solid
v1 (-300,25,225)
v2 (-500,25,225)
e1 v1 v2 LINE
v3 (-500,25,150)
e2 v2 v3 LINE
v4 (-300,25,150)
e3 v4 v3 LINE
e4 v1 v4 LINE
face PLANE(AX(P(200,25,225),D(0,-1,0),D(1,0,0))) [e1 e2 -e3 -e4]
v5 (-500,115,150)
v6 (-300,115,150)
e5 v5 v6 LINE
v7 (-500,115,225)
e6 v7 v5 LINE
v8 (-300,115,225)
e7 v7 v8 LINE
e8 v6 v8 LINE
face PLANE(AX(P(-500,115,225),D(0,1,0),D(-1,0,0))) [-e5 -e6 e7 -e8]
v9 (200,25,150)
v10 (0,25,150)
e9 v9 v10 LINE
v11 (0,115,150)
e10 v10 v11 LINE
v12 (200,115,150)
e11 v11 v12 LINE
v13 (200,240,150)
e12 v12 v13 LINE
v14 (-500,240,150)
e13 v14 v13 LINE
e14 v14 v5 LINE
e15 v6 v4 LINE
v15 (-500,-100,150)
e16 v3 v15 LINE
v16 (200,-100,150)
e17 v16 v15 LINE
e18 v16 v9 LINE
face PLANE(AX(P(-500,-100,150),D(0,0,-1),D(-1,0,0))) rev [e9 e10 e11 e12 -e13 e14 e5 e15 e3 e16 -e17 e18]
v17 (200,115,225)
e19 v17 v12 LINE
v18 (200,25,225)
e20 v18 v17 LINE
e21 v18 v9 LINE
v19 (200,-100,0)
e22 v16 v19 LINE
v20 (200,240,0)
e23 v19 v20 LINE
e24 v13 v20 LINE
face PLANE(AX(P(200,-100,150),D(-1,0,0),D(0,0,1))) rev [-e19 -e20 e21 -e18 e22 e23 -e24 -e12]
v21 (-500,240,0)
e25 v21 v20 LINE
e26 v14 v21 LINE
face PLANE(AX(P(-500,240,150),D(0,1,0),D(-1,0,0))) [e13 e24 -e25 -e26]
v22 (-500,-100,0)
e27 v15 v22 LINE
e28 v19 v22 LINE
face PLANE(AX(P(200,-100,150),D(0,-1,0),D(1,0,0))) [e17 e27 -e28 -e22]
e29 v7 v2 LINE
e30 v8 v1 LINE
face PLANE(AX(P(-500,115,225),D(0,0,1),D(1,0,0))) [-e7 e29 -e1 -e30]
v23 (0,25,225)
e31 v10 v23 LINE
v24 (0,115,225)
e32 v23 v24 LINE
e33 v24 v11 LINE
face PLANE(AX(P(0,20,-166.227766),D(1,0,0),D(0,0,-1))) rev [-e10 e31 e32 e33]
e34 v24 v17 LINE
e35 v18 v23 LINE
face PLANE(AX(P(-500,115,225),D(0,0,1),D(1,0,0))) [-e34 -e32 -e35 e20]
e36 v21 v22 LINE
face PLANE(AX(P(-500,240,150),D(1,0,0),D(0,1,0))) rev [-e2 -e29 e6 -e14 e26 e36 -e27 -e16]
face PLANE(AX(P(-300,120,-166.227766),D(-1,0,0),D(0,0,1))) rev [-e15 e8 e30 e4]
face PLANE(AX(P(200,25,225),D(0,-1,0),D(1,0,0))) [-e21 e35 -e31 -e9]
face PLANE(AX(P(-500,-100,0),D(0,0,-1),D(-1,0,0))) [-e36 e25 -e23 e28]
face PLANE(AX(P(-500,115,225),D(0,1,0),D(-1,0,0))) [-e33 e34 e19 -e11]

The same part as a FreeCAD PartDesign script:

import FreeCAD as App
import Part
import Sketcher
Q = App.Units.Quantity


def add_polygon(sketch, points):
    """Adds a closed chain of lines whose ends are joined by coincident constraints."""
    first, n = sketch.GeometryCount, len(points)
    for a, b in zip(points, points[1:] + points[:1]):
        sketch.addGeometry(Part.LineSegment(App.Vector(*a, 0), App.Vector(*b, 0)), False)
    for i in range(n):
        sketch.addConstraint(Sketcher.Constraint("Coincident", first + i, 2, first + (i + 1) % n, 1))

doc = App.newDocument("Part")
params = doc.addObject("Spreadsheet::Sheet", "Params")
for row, (alias, value) in enumerate([
    ("sketch1_width", "700 mm"),
    ("sketch1_height", "340 mm"),
    ("pad1_length", "150 mm"),
    ("sketch2_width", "700 mm"),
    ("sketch2_height", "90 mm"),
    ("pad2_length", "75 mm"),
    ("sketch3_width", "300 mm"),
    ("sketch3_height", "100 mm"),
    ("pocket1_length", "75 mm"),
], start=1):
    params.set(f"A{row}", alias)
    params.set(f"B{row}", "=" + value)
    params.setAlias(f"B{row}", alias)

body = doc.addObject("PartDesign::Body", "Body")

sketch1 = doc.addObject("Sketcher::SketchObject", "Sketch")
body.addObject(sketch1)
sketch1.AttachmentSupport = (doc.XY_Plane, [""])
sketch1.MapMode = "FlatFace"
add_polygon(sketch1, [(-500, 240), (-500, -100), (200, -100), (200, 240)])
sketch1.addConstraint(Sketcher.Constraint("Vertical", 0))
sketch1.addConstraint(Sketcher.Constraint("Horizontal", 1))
sketch1.addConstraint(Sketcher.Constraint("Vertical", 2))
sketch1.addConstraint(Sketcher.Constraint("Horizontal", 3))
sketch1.addConstraint(Sketcher.Constraint("DistanceX", 1, 1, 1, 2, Q("700 mm")))
sketch1.addConstraint(Sketcher.Constraint("DistanceY", 0, 2, 0, 1, Q("340 mm")))
sketch1.addConstraint(Sketcher.Constraint("DistanceX", 0, 2, -1, 1, Q("500 mm")))
sketch1.addConstraint(Sketcher.Constraint("DistanceY", 0, 2, -1, 1, Q("100 mm")))
sketch1.setExpression("Constraints[8]", "Params.sketch1_width")
sketch1.setExpression("Constraints[9]", "Params.sketch1_height")
pad1 = doc.addObject("PartDesign::Pad", "Pad")
body.addObject(pad1)
pad1.Profile = sketch1
pad1.setExpression("Length", "Params.pad1_length")

sketch2 = doc.addObject("Sketcher::SketchObject", "Sketch001")
body.addObject(sketch2)
sketch2.AttachmentSupport = (doc.XY_Plane, [""])
sketch2.MapMode = "FlatFace"
sketch2.AttachmentOffset = App.Placement(App.Vector(0, 0, 150), App.Rotation())
add_polygon(sketch2, [(-500, 115), (-500, 25), (200, 25), (200, 115)])
sketch2.addConstraint(Sketcher.Constraint("Vertical", 0))
sketch2.addConstraint(Sketcher.Constraint("Horizontal", 1))
sketch2.addConstraint(Sketcher.Constraint("Vertical", 2))
sketch2.addConstraint(Sketcher.Constraint("Horizontal", 3))
sketch2.addConstraint(Sketcher.Constraint("DistanceX", 1, 1, 1, 2, Q("700 mm")))
sketch2.addConstraint(Sketcher.Constraint("DistanceY", 0, 2, 0, 1, Q("90 mm")))
sketch2.addConstraint(Sketcher.Constraint("DistanceX", 0, 2, -1, 1, Q("500 mm")))
sketch2.addConstraint(Sketcher.Constraint("DistanceY", -1, 1, 0, 2, Q("25 mm")))
sketch2.setExpression("Constraints[8]", "Params.sketch2_width")
sketch2.setExpression("Constraints[9]", "Params.sketch2_height")
pad2 = doc.addObject("PartDesign::Pad", "Pad001")
body.addObject(pad2)
pad2.Profile = sketch2
pad2.setExpression("Length", "Params.pad2_length")

sketch3 = doc.addObject("Sketcher::SketchObject", "Sketch002")
body.addObject(sketch3)
sketch3.AttachmentSupport = (doc.XY_Plane, [""])
sketch3.MapMode = "FlatFace"
sketch3.AttachmentOffset = App.Placement(App.Vector(0, 0, 225), App.Rotation())
add_polygon(sketch3, [(-300, 120), (-300, 20), (0, 20), (0, 120)])
sketch3.addConstraint(Sketcher.Constraint("Vertical", 0))
sketch3.addConstraint(Sketcher.Constraint("Horizontal", 1))
sketch3.addConstraint(Sketcher.Constraint("Vertical", 2))
sketch3.addConstraint(Sketcher.Constraint("Horizontal", 3))
sketch3.addConstraint(Sketcher.Constraint("PointOnObject", 1, 2, -2))
sketch3.addConstraint(Sketcher.Constraint("DistanceX", 1, 1, 1, 2, Q("300 mm")))
sketch3.addConstraint(Sketcher.Constraint("DistanceY", 0, 2, 0, 1, Q("100 mm")))
sketch3.addConstraint(Sketcher.Constraint("DistanceY", -1, 1, 0, 2, Q("20 mm")))
sketch3.setExpression("Constraints[9]", "Params.sketch3_width")
sketch3.setExpression("Constraints[10]", "Params.sketch3_height")
pocket1 = doc.addObject("PartDesign::Pocket", "Pocket")
body.addObject(pocket1)
pocket1.Profile = sketch3
pocket1.setExpression("Length", "Params.pocket1_length")

doc.recompute()
